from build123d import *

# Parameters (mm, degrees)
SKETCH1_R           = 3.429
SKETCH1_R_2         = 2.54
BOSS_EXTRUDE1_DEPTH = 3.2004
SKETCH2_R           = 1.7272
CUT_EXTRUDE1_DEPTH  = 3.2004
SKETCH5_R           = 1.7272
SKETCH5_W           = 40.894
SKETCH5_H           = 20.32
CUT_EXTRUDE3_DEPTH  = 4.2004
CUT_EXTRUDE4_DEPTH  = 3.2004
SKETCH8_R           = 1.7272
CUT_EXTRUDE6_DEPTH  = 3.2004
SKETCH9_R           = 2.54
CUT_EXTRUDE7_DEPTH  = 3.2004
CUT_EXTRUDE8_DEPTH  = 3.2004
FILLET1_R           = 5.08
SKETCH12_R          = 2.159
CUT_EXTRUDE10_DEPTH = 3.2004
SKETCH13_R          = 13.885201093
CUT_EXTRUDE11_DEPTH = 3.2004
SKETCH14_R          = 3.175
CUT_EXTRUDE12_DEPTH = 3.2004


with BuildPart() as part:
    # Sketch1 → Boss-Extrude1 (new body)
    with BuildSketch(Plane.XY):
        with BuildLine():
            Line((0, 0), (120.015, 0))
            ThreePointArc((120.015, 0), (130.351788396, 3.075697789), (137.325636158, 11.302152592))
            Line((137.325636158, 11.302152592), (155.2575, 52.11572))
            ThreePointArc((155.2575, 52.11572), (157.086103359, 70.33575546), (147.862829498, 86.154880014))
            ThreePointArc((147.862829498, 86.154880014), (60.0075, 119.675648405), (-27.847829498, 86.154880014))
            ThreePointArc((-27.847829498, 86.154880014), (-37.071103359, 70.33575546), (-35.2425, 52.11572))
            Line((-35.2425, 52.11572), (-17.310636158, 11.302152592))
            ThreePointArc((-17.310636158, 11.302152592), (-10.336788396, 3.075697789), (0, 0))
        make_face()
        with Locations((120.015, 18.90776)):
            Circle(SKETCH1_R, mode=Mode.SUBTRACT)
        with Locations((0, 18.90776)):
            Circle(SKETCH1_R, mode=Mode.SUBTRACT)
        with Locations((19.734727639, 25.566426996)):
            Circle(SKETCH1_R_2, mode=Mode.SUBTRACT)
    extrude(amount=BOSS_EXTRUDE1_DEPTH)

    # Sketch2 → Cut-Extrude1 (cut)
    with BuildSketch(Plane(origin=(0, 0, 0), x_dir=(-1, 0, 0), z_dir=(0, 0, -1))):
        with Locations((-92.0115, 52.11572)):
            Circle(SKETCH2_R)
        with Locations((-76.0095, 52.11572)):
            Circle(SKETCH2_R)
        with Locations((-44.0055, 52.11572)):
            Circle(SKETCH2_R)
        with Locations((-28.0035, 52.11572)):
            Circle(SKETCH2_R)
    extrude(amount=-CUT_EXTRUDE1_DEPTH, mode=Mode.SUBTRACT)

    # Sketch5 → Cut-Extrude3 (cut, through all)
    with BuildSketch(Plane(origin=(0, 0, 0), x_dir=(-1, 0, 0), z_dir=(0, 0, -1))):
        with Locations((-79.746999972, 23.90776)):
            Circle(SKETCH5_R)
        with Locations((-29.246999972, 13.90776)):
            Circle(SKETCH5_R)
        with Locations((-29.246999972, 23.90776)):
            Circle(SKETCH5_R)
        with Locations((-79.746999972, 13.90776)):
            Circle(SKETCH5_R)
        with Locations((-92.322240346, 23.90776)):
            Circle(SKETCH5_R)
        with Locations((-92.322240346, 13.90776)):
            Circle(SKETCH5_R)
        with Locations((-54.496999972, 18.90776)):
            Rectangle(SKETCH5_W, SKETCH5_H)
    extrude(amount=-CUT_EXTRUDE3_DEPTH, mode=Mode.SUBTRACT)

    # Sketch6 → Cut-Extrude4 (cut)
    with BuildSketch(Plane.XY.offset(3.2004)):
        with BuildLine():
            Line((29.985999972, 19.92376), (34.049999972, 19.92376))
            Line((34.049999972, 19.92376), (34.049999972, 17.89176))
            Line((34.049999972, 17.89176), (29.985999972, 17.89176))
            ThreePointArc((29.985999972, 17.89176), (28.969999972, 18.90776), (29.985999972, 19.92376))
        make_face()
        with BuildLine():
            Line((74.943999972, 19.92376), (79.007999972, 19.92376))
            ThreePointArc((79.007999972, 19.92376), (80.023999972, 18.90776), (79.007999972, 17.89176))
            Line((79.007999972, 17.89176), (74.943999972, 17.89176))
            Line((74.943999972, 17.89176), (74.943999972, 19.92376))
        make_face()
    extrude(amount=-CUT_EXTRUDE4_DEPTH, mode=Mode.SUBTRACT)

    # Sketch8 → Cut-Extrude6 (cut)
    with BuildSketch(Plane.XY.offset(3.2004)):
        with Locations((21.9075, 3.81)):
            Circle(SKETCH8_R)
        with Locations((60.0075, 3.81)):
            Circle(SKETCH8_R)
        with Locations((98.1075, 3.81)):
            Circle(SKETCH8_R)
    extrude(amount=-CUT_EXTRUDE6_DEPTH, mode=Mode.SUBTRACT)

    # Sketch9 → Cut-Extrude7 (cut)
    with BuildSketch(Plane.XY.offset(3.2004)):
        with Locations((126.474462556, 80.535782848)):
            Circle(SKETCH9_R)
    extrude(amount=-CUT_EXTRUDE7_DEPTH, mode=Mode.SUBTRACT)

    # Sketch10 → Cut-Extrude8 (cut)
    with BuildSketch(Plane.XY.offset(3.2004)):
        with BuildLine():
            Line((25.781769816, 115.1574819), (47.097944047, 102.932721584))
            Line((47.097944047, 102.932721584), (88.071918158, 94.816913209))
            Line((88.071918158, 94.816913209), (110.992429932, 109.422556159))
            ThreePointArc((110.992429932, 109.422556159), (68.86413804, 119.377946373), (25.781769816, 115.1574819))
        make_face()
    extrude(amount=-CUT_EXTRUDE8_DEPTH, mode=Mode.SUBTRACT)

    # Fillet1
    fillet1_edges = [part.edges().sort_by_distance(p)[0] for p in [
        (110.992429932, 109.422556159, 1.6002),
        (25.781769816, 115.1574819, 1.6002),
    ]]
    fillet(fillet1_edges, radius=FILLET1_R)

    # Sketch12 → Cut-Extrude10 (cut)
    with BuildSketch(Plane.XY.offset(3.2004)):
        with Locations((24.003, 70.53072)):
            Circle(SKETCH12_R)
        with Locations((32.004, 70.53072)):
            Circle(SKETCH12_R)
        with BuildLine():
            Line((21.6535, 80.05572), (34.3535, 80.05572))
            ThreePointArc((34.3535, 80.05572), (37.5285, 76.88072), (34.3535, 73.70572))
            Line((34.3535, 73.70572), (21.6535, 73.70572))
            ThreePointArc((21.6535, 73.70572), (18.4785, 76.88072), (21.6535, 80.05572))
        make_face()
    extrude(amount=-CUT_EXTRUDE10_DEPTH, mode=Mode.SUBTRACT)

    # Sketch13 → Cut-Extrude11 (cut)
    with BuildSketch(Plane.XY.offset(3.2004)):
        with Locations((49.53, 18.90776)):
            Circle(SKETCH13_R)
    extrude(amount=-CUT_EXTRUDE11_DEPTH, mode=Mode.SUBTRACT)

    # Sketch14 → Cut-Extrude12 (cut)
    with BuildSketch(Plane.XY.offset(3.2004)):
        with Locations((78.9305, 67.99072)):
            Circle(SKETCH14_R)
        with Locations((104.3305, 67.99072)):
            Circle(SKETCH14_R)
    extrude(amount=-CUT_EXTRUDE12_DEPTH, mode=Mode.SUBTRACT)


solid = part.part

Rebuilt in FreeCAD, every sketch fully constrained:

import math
import FreeCAD as App
import Part
import Sketcher
from FreeCAD import Vector
Q = App.Units.Quantity


def edges_at(feature, points):
    """Names of the edges that pass closest to the given points."""
    edges = feature.Shape.Edges
    near = lambda p: min(range(len(edges)), key=lambda i: edges[i].distToShape(Part.Vertex(*p))[0])
    return sorted({f"Edge{near(p) + 1}" for p in points})

doc = App.newDocument("Part")
body = doc.addObject("PartDesign::Body", "Body")

sketch1 = doc.addObject("Sketcher::SketchObject", "Sketch")
body.addObject(sketch1)
sketch1.AttachmentSupport = (doc.XY_Plane, [""])
sketch1.MapMode = "FlatFace"
sketch1.addGeometry(Part.LineSegment(Vector(0, 0, 0), Vector(120, 0, 0)), False)
sketch1.addGeometry(Part.ArcOfCircle(Part.Circle(Vector(120, 18.9, 0), Vector(0, 0, 1), 18.9), math.radians(-90), math.radians(-24)), False)
sketch1.addGeometry(Part.LineSegment(Vector(137.3, 11.3, 0), Vector(155.3, 52.1, 0)), False)
sketch1.addGeometry(Part.ArcOfCircle(Part.Circle(Vector(128.1, 64, 0), Vector(0, 0, 1), 29.6), math.radians(-24), math.radians(48)), False)
sketch1.addGeometry(Part.ArcOfCircle(Part.Circle(Vector(60, -12.2, 0), Vector(0, 0, 1), 131.9), math.radians(48), math.radians(132)), False)
sketch1.addGeometry(Part.ArcOfCircle(Part.Circle(Vector(-8.1, 64, 0), Vector(0, 0, 1), 29.6), math.radians(132), math.radians(204)), False)
sketch1.addGeometry(Part.LineSegment(Vector(-35.2, 52.1, 0), Vector(-17.3, 11.3, 0)), False)
sketch1.addGeometry(Part.ArcOfCircle(Part.Circle(Vector(0, 18.9, 0), Vector(0, 0, 1), 18.9), math.radians(-156), math.radians(-90)), False)
sketch1.addGeometry(Part.Circle(Vector(0, 18.9, 0), Vector(0, 0, 1), 3.4), False)
sketch1.addGeometry(Part.Circle(Vector(120, 18.9, 0), Vector(0, 0, 1), 3.4), False)
sketch1.addGeometry(Part.Circle(Vector(19.7, 25.6, 0), Vector(0, 0, 1), 2.5), False)
sketch1.addConstraint(Sketcher.Constraint("Tangent", 0, 2, 1, 1))
sketch1.addConstraint(Sketcher.Constraint("Tangent", 1, 2, 2, 1))
sketch1.addConstraint(Sketcher.Constraint("Tangent", 2, 2, 3, 1))
sketch1.addConstraint(Sketcher.Constraint("Tangent", 3, 2, 4, 1))
sketch1.addConstraint(Sketcher.Constraint("Tangent", 4, 2, 5, 1))
sketch1.addConstraint(Sketcher.Constraint("Tangent", 5, 2, 6, 1))
sketch1.addConstraint(Sketcher.Constraint("Tangent", 6, 2, 7, 1))
sketch1.addConstraint(Sketcher.Constraint("Tangent", 7, 2, 0, 1))
sketch1.addConstraint(Sketcher.Constraint("Horizontal", 0))
sketch1.addConstraint(Sketcher.Constraint("Coincident", 7, 2, -1, 1))
sketch1.addConstraint(Sketcher.Constraint("Coincident", 8, 3, 7, 3))
sketch1.addConstraint(Sketcher.Constraint("Coincident", 9, 3, 1, 3))
sketch1.addConstraint(Sketcher.Constraint("Equal", 3, 5))
sketch1.addConstraint(Sketcher.Constraint("Equal", 1, 7))
sketch1.addConstraint(Sketcher.Constraint("Equal", 8, 9))
sketch1.addConstraint(Sketcher.Constraint("Horizontal", 3, 3, 5, 3))
sketch1.addConstraint(Sketcher.Constraint("Horizontal", 2, 2, 5, 2))
sketch1.addConstraint(Sketcher.Constraint("Diameter", 10, Q("0.2 in")))
sketch1.addConstraint(Sketcher.Constraint("Diameter", 8, Q("0.27 in")))
sketch1.addConstraint(Sketcher.Constraint("Radius", 1, Q("0.7444 in")))
sketch1.addConstraint(Sketcher.Constraint("DistanceX", 0, 1, 0, 2, Q("4.725 in")))
sketch1.addConstraint(Sketcher.Constraint("Radius", 3, 29.648419))
sketch1.addConstraint(Sketcher.Constraint("Radius", 4, 131.89138))
sketch1.addConstraint(Sketcher.Constraint("DistanceX", -1, 1, 2, 2, Q("6.1125 in")))
sketch1.addConstraint(Sketcher.Constraint("DistanceY", -1, 1, 2, 2, Q("2.0518 in")))
sketch1.addConstraint(Sketcher.Constraint("DistanceY", 10, 3, 5, 3, 38.475308))
sketch1.addConstraint(Sketcher.Constraint("DistanceX", -1, 1, 10, 3, 19.734728))
pad1 = doc.addObject("PartDesign::Pad", "Pad")
body.addObject(pad1)
pad1.Profile = sketch1
pad1.Length = Q("0.126 in")

sketch2 = doc.addObject("Sketcher::SketchObject", "Sketch001")
body.addObject(sketch2)
sketch2.AttachmentSupport = (doc.XY_Plane, [""])
sketch2.MapMode = "FlatFace"
sketch2.addGeometry(Part.Circle(Vector(92, 52.1, 0), Vector(0, 0, 1), 1.7), False)
sketch2.addGeometry(Part.Circle(Vector(76, 52.1, 0), Vector(0, 0, 1), 1.7), False)
sketch2.addGeometry(Part.Circle(Vector(44, 52.1, 0), Vector(0, 0, 1), 1.7), False)
sketch2.addGeometry(Part.Circle(Vector(28, 52.1, 0), Vector(0, 0, 1), 1.7), False)
sketch2.addConstraint(Sketcher.Constraint("Equal", 0, 1))
sketch2.addConstraint(Sketcher.Constraint("Equal", 1, 2))
sketch2.addConstraint(Sketcher.Constraint("Equal", 2, 3))
sketch2.addConstraint(Sketcher.Constraint("Horizontal", 0, 3, 1, 3))
sketch2.addConstraint(Sketcher.Constraint("Horizontal", 1, 3, 2, 3))
sketch2.addConstraint(Sketcher.Constraint("Horizontal", 2, 3, 3, 3))
sketch2.addConstraint(Sketcher.Constraint("Diameter", 0, Q("0.136 in")))
sketch2.addConstraint(Sketcher.Constraint("DistanceX", 1, 3, 0, 3, Q("0.63 in")))
sketch2.addConstraint(Sketcher.Constraint("DistanceX", 2, 3, 1, 3, Q("1.26 in")))
sketch2.addConstraint(Sketcher.Constraint("DistanceX", 3, 3, 2, 3, Q("0.63 in")))
sketch2.addConstraint(Sketcher.Constraint("DistanceX", -1, 1, 0, 3, Q("3.6225 in")))
sketch2.addConstraint(Sketcher.Constraint("DistanceY", -1, 1, 0, 3, Q("2.0518 in")))
pocket1 = doc.addObject("PartDesign::Pocket", "Pocket")
body.addObject(pocket1)
pocket1.Profile = sketch2
pocket1.Length = Q("0.126 in")
pocket1.Reversed = True

sketch3 = doc.addObject("Sketcher::SketchObject", "Sketch002")
body.addObject(sketch3)
sketch3.AttachmentSupport = (doc.XY_Plane, [""])
sketch3.MapMode = "FlatFace"
sketch3.addGeometry(Part.Circle(Vector(79.7, 23.9, 0), Vector(0, 0, 1), 1.7), False)
sketch3.addGeometry(Part.Circle(Vector(29.2, 13.9, 0), Vector(0, 0, 1), 1.7), False)
sketch3.addGeometry(Part.Circle(Vector(29.2, 23.9, 0), Vector(0, 0, 1), 1.7), False)
sketch3.addGeometry(Part.Circle(Vector(79.7, 13.9, 0), Vector(0, 0, 1), 1.7), False)
sketch3.addGeometry(Part.Circle(Vector(92.3, 23.9, 0), Vector(0, 0, 1), 1.7), False)
sketch3.addGeometry(Part.Circle(Vector(92.3, 13.9, 0), Vector(0, 0, 1), 1.7), False)
sketch3.addGeometry(Part.LineSegment(Vector(74.9, 29.1, 0), Vector(74.9, 8.7, 0)), False)
sketch3.addGeometry(Part.LineSegment(Vector(74.9, 8.7, 0), Vector(34, 8.7, 0)), False)
sketch3.addGeometry(Part.LineSegment(Vector(34, 8.7, 0), Vector(34, 29.1, 0)), False)
sketch3.addGeometry(Part.LineSegment(Vector(34, 29.1, 0), Vector(74.9, 29.1, 0)), False)
sketch3.addConstraint(Sketcher.Constraint("Coincident", 6, 2, 7, 1))
sketch3.addConstraint(Sketcher.Constraint("Coincident", 7, 2, 8, 1))
sketch3.addConstraint(Sketcher.Constraint("Coincident", 8, 2, 9, 1))
sketch3.addConstraint(Sketcher.Constraint("Coincident", 9, 2, 6, 1))
sketch3.addConstraint(Sketcher.Constraint("Vertical", 6))
sketch3.addConstraint(Sketcher.Constraint("Horizontal", 7))
sketch3.addConstraint(Sketcher.Constraint("Vertical", 8))
sketch3.addConstraint(Sketcher.Constraint("Horizontal", 9))
sketch3.addConstraint(Sketcher.Constraint("Equal", 0, 1))
sketch3.addConstraint(Sketcher.Constraint("Equal", 1, 2))
sketch3.addConstraint(Sketcher.Constraint("Equal", 2, 3))
sketch3.addConstraint(Sketcher.Constraint("Equal", 3, 4))
sketch3.addConstraint(Sketcher.Constraint("Equal", 4, 5))
sketch3.addConstraint(Sketcher.Constraint("Horizontal", 0, 3, 2, 3))
sketch3.addConstraint(Sketcher.Constraint("Horizontal", 1, 3, 3, 3))
sketch3.addConstraint(Sketcher.Constraint("Horizontal", 2, 3, 4, 3))
sketch3.addConstraint(Sketcher.Constraint("Horizontal", 3, 3, 5, 3))
sketch3.addConstraint(Sketcher.Constraint("Vertical", 1, 3, 2, 3))
sketch3.addConstraint(Sketcher.Constraint("Vertical", 0, 3, 3, 3))
sketch3.addConstraint(Sketcher.Constraint("Vertical", 4, 3, 5, 3))
sketch3.addConstraint(Sketcher.Constraint("Diameter", 0, Q("0.136 in")))
sketch3.addConstraint(Sketcher.Constraint("DistanceY", 6, 2, 6, 1, Q("0.8 in")))
sketch3.addConstraint(Sketcher.Constraint("DistanceX", 7, 2, 7, 1, Q("1.61 in")))
sketch3.addConstraint(Sketcher.Constraint("DistanceY", -1, 1, 6, 2, Q("0.3444 in")))
sketch3.addConstraint(Sketcher.Constraint("DistanceX", -1, 1, 0, 3, 79.747))
sketch3.addConstraint(Sketcher.Constraint("DistanceX", -1, 1, 1, 3, 29.247))
sketch3.addConstraint(Sketcher.Constraint("DistanceX", -1, 1, 6, 2, 74.944))
sketch3.addConstraint(Sketcher.Constraint("DistanceY", 1, 3, 0, 3, 10.0))
sketch3.addConstraint(Sketcher.Constraint("DistanceY", 6, 2, 3, 3, 5.16))
sketch3.addConstraint(Sketcher.Constraint("DistanceX", -1, 1, 4, 3, 92.32224))
pocket2 = doc.addObject("PartDesign::Pocket", "Pocket001")
body.addObject(pocket2)
pocket2.Profile = sketch3
pocket2.Type = "ThroughAll"
pocket2.Reversed = True

sketch4 = doc.addObject("Sketcher::SketchObject", "Sketch003")
body.addObject(sketch4)
sketch4.AttachmentSupport = (doc.XY_Plane, [""])
sketch4.MapMode = "FlatFace"
sketch4.AttachmentOffset = App.Placement(Vector(0, 0, 0.126 * 25.4), App.Rotation())
sketch4.addGeometry(Part.LineSegment(Vector(34, 19.9, 0), Vector(30, 19.9, 0)), False)
sketch4.addGeometry(Part.ArcOfCircle(Part.Circle(Vector(30, 18.9, 0), Vector(0, 0, 1), 1), math.radians(90), math.radians(270)), False)
sketch4.addGeometry(Part.LineSegment(Vector(30, 17.9, 0), Vector(34, 17.9, 0)), False)
sketch4.addGeometry(Part.LineSegment(Vector(34, 17.9, 0), Vector(34, 19.9, 0)), False)
sketch4.addGeometry(Part.LineSegment(Vector(79, 19.9, 0), Vector(74.9, 19.9, 0)), False)
sketch4.addGeometry(Part.LineSegment(Vector(74.9, 19.9, 0), Vector(74.9, 17.9, 0)), False)
sketch4.addGeometry(Part.LineSegment(Vector(74.9, 17.9, 0), Vector(79, 17.9, 0)), False)
sketch4.addGeometry(Part.ArcOfCircle(Part.Circle(Vector(79, 18.9, 0), Vector(0, 0, 1), 1), math.radians(-90), math.radians(90)), False)
sketch4.addConstraint(Sketcher.Constraint("Tangent", 0, 2, 1, 1))
sketch4.addConstraint(Sketcher.Constraint("Tangent", 1, 2, 2, 1))
sketch4.addConstraint(Sketcher.Constraint("Coincident", 2, 2, 3, 1))
sketch4.addConstraint(Sketcher.Constraint("Coincident", 3, 2, 0, 1))
sketch4.addConstraint(Sketcher.Constraint("Coincident", 4, 2, 5, 1))
sketch4.addConstraint(Sketcher.Constraint("Coincident", 5, 2, 6, 1))
sketch4.addConstraint(Sketcher.Constraint("Tangent", 6, 2, 7, 1))
sketch4.addConstraint(Sketcher.Constraint("Tangent", 7, 2, 4, 1))
sketch4.addConstraint(Sketcher.Constraint("Horizontal", 0))
sketch4.addConstraint(Sketcher.Constraint("Horizontal", 2))
sketch4.addConstraint(Sketcher.Constraint("Vertical", 3))
sketch4.addConstraint(Sketcher.Constraint("Horizontal", 4))
sketch4.addConstraint(Sketcher.Constraint("Vertical", 5))
sketch4.addConstraint(Sketcher.Constraint("Horizontal", 6))
sketch4.addConstraint(Sketcher.Constraint("Equal", 1, 7))
sketch4.addConstraint(Sketcher.Constraint("Horizontal", 1, 3, 7, 3))
sketch4.addConstraint(Sketcher.Constraint("Equal", 2, 4))
sketch4.addConstraint(Sketcher.Constraint("Radius", 1, Q("0.04 in")))
sketch4.addConstraint(Sketcher.Constraint("DistanceX", 0, 2, 0, 1, Q("0.16 in")))
sketch4.addConstraint(Sketcher.Constraint("DistanceX", 1, 3, 7, 3, Q("1.93 in")))
sketch4.addConstraint(Sketcher.Constraint("DistanceY", -1, 1, 1, 3, Q("0.7444 in")))
sketch4.addConstraint(Sketcher.Constraint("DistanceX", -1, 1, 1, 3, 29.986))
pocket3 = doc.addObject("PartDesign::Pocket", "Pocket002")
body.addObject(pocket3)
pocket3.Profile = sketch4
pocket3.Length = Q("0.126 in")

sketch5 = doc.addObject("Sketcher::SketchObject", "Sketch004")
body.addObject(sketch5)
sketch5.AttachmentSupport = (doc.XY_Plane, [""])
sketch5.MapMode = "FlatFace"
sketch5.AttachmentOffset = App.Placement(Vector(0, 0, 0.126 * 25.4), App.Rotation())
sketch5.addGeometry(Part.Circle(Vector(21.9, 3.8, 0), Vector(0, 0, 1), 1.7), False)
sketch5.addGeometry(Part.Circle(Vector(60, 3.8, 0), Vector(0, 0, 1), 1.7), False)
sketch5.addGeometry(Part.Circle(Vector(98.1, 3.8, 0), Vector(0, 0, 1), 1.7), False)
sketch5.addConstraint(Sketcher.Constraint("Equal", 0, 1))
sketch5.addConstraint(Sketcher.Constraint("Equal", 1, 2))
sketch5.addConstraint(Sketcher.Constraint("Horizontal", 0, 3, 1, 3))
sketch5.addConstraint(Sketcher.Constraint("Horizontal", 1, 3, 2, 3))
sketch5.addConstraint(Sketcher.Constraint("Diameter", 0, Q("0.136 in")))
sketch5.addConstraint(Sketcher.Constraint("DistanceX", 0, 3, 2, 3, Q("3 in")))
sketch5.addConstraint(Sketcher.Constraint("DistanceX", 0, 3, 1, 3, Q("1.5 in")))
sketch5.addConstraint(Sketcher.Constraint("DistanceY", -1, 1, 0, 3, Q("0.15 in")))
sketch5.addConstraint(Sketcher.Constraint("DistanceX", -1, 1, 0, 3, Q("0.8625 in")))
pocket4 = doc.addObject("PartDesign::Pocket", "Pocket003")
body.addObject(pocket4)
pocket4.Profile = sketch5
pocket4.Length = Q("0.126 in")

sketch6 = doc.addObject("Sketcher::SketchObject", "Sketch005")
body.addObject(sketch6)
sketch6.AttachmentSupport = (doc.XY_Plane, [""])
sketch6.MapMode = "FlatFace"
sketch6.AttachmentOffset = App.Placement(Vector(0, 0, 0.126 * 25.4), App.Rotation())
sketch6.addGeometry(Part.Circle(Vector(126.5, 80.5, 0), Vector(0, 0, 1), 2.5), False)
sketch6.addConstraint(Sketcher.Constraint("Diameter", 0, Q("0.2 in")))
sketch6.addConstraint(Sketcher.Constraint("DistanceY", -1, 1, 0, 3, Q("3.1707001 in")))
sketch6.addConstraint(Sketcher.Constraint("DistanceX", -1, 1, 0, 3, 126.474463))
pocket5 = doc.addObject("PartDesign::Pocket", "Pocket004")
body.addObject(pocket5)
pocket5.Profile = sketch6
pocket5.Length = Q("0.126 in")

sketch7 = doc.addObject("Sketcher::SketchObject", "Sketch006")
body.addObject(sketch7)
sketch7.AttachmentSupport = (doc.XY_Plane, [""])
sketch7.MapMode = "FlatFace"
sketch7.AttachmentOffset = App.Placement(Vector(0, 0, 0.126 * 25.4), App.Rotation())
sketch7.addGeometry(Part.LineSegment(Vector(26, 115, 0), Vector(47, 103, 0)), False)
sketch7.addGeometry(Part.LineSegment(Vector(47, 103, 0), Vector(88, 95, 0)), False)
sketch7.addGeometry(Part.LineSegment(Vector(88, 95, 0), Vector(111, 109, 0)), False)
sketch7.addGeometry(Part.ArcOfCircle(Part.Circle(Vector(60, -12, 0), Vector(0, 0, 1), 132), math.radians(67), math.radians(105)), False)
sketch7.addConstraint(Sketcher.Constraint("Coincident", 0, 2, 1, 1))
sketch7.addConstraint(Sketcher.Constraint("Coincident", 1, 2, 2, 1))
sketch7.addConstraint(Sketcher.Constraint("Coincident", 2, 2, 3, 1))
sketch7.addConstraint(Sketcher.Constraint("Coincident", 3, 2, 0, 1))
sketch7.addConstraint(Sketcher.Constraint("Radius", 3, 131.89138))
sketch7.addConstraint(Sketcher.Constraint("DistanceX", -1, 1, 3, 3, Q("2.3625 in")))
sketch7.addConstraint(Sketcher.Constraint("Distance", 1, 41.77))
sketch7.addConstraint(Sketcher.Constraint("Distance", 0, 24.572832))
sketch7.addConstraint(Sketcher.Constraint("Distance", 2, 27.17857))
sketch7.addConstraint(Sketcher.Constraint("DistanceY", -1, 1, 0, 2, 102.932722))
sketch7.addConstraint(Sketcher.Constraint("DistanceX", -1, 1, 1, 2, 88.071918))
sketch7.addConstraint(Sketcher.Constraint("DistanceX", -1, 1, 2, 2, 110.99243))
sketch7.addConstraint(Sketcher.Constraint("DistanceY", -1, 1, 3, 2, 115.157482))
pocket6 = doc.addObject("PartDesign::Pocket", "Pocket005")
body.addObject(pocket6)
pocket6.Profile = sketch7
pocket6.Length = Q("0.126 in")
doc.recompute()

fillet = doc.addObject("PartDesign::Fillet", "Fillet")
body.addObject(fillet)
fillet.Base = (pocket6, edges_at(pocket6, [(110.992, 109.423, 1.6), (25.782, 115.157, 1.6)]))
fillet.Radius = Q("0.2 in")

sketch8 = doc.addObject("Sketcher::SketchObject", "Sketch007")
body.addObject(sketch8)
sketch8.AttachmentSupport = (doc.XY_Plane, [""])
sketch8.MapMode = "FlatFace"
sketch8.AttachmentOffset = App.Placement(Vector(0, 0, 0.126 * 25.4), App.Rotation())
sketch8.addGeometry(Part.Circle(Vector(24, 70.5, 0), Vector(0, 0, 1), 2.2), False)
sketch8.addGeometry(Part.Circle(Vector(32, 70.5, 0), Vector(0, 0, 1), 2.2), False)
sketch8.addGeometry(Part.LineSegment(Vector(34.4, 80.1, 0), Vector(21.7, 80.1, 0)), False)
sketch8.addGeometry(Part.ArcOfCircle(Part.Circle(Vector(21.7, 76.9, 0), Vector(0, 0, 1), 3.2), math.radians(90), math.radians(270)), False)
sketch8.addGeometry(Part.LineSegment(Vector(21.7, 73.7, 0), Vector(34.4, 73.7, 0)), False)
sketch8.addGeometry(Part.ArcOfCircle(Part.Circle(Vector(34.4, 76.9, 0), Vector(0, 0, 1), 3.2), math.radians(-90), math.radians(90)), False)
sketch8.addConstraint(Sketcher.Constraint("Tangent", 2, 2, 3, 1))
sketch8.addConstraint(Sketcher.Constraint("Tangent", 3, 2, 4, 1))
sketch8.addConstraint(Sketcher.Constraint("Tangent", 4, 2, 5, 1))
sketch8.addConstraint(Sketcher.Constraint("Tangent", 5, 2, 2, 1))
sketch8.addConstraint(Sketcher.Constraint("Horizontal", 2))
sketch8.addConstraint(Sketcher.Constraint("Horizontal", 4))
sketch8.addConstraint(Sketcher.Constraint("Equal", 0, 1))
sketch8.addConstraint(Sketcher.Constraint("Horizontal", 0, 3, 1, 3))
sketch8.addConstraint(Sketcher.Constraint("Diameter", 0, Q("0.17 in")))
sketch8.addConstraint(Sketcher.Constraint("DistanceX", 2, 2, 2, 1, Q("0.5 in")))
sketch8.addConstraint(Sketcher.Constraint("Radius", 3, Q("0.125 in")))
sketch8.addConstraint(Sketcher.Constraint("DistanceX", -1, 1, 1, 3, Q("1.26 in")))
sketch8.addConstraint(Sketcher.Constraint("DistanceY", 0, 3, 3, 3, Q("0.25 in")))
sketch8.addConstraint(Sketcher.Constraint("DistanceX", -1, 1, 0, 3, Q("0.945 in")))
sketch8.addConstraint(Sketcher.Constraint("DistanceY", -1, 1, 0, 3, Q("2.7768 in")))
sketch8.addConstraint(Sketcher.Constraint("DistanceX", -1, 1, 3, 3, Q("0.8525 in")))
pocket7 = doc.addObject("PartDesign::Pocket", "Pocket006")
body.addObject(pocket7)
pocket7.Profile = sketch8
pocket7.Length = Q("0.126 in")

sketch9 = doc.addObject("Sketcher::SketchObject", "Sketch008")
body.addObject(sketch9)
sketch9.AttachmentSupport = (doc.XY_Plane, [""])
sketch9.MapMode = "FlatFace"
sketch9.AttachmentOffset = App.Placement(Vector(0, 0, 0.126 * 25.4), App.Rotation())
sketch9.addGeometry(Part.Circle(Vector(50, 19, 0), Vector(0, 0, 1), 14), False)
sketch9.addConstraint(Sketcher.Constraint("DistanceX", -1, 1, 0, 3, Q("1.95 in")))
sketch9.addConstraint(Sketcher.Constraint("Diameter", 0, 27.770402))
sketch9.addConstraint(Sketcher.Constraint("DistanceY", -1, 1, 0, 3, Q("0.7444 in")))
pocket8 = doc.addObject("PartDesign::Pocket", "Pocket007")
body.addObject(pocket8)
pocket8.Profile = sketch9
pocket8.Length = Q("0.126 in")

sketch10 = doc.addObject("Sketcher::SketchObject", "Sketch009")
body.addObject(sketch10)
sketch10.AttachmentSupport = (doc.XY_Plane, [""])
sketch10.MapMode = "FlatFace"
sketch10.AttachmentOffset = App.Placement(Vector(0, 0, 0.126 * 25.4), App.Rotation())
sketch10.addGeometry(Part.Circle(Vector(78.9, 68, 0), Vector(0, 0, 1), 3.2), False)
sketch10.addGeometry(Part.Circle(Vector(104.3, 68, 0), Vector(0, 0, 1), 3.2), False)
sketch10.addConstraint(Sketcher.Constraint("Equal", 0, 1))
sketch10.addConstraint(Sketcher.Constraint("Horizontal", 0, 3, 1, 3))
sketch10.addConstraint(Sketcher.Constraint("Diameter", 0, Q("0.25 in")))
sketch10.addConstraint(Sketcher.Constraint("DistanceX", 0, 3, 1, 3, Q("1 in")))
sketch10.addConstraint(Sketcher.Constraint("DistanceX", -1, 1, 0, 3, Q("3.1075 in")))
sketch10.addConstraint(Sketcher.Constraint("DistanceY", -1, 1, 0, 3, Q("2.6768 in")))
pocket9 = doc.addObject("PartDesign::Pocket", "Pocket008")
body.addObject(pocket9)
pocket9.Profile = sketch10
pocket9.Length = Q("0.126 in")

doc.recompute()
